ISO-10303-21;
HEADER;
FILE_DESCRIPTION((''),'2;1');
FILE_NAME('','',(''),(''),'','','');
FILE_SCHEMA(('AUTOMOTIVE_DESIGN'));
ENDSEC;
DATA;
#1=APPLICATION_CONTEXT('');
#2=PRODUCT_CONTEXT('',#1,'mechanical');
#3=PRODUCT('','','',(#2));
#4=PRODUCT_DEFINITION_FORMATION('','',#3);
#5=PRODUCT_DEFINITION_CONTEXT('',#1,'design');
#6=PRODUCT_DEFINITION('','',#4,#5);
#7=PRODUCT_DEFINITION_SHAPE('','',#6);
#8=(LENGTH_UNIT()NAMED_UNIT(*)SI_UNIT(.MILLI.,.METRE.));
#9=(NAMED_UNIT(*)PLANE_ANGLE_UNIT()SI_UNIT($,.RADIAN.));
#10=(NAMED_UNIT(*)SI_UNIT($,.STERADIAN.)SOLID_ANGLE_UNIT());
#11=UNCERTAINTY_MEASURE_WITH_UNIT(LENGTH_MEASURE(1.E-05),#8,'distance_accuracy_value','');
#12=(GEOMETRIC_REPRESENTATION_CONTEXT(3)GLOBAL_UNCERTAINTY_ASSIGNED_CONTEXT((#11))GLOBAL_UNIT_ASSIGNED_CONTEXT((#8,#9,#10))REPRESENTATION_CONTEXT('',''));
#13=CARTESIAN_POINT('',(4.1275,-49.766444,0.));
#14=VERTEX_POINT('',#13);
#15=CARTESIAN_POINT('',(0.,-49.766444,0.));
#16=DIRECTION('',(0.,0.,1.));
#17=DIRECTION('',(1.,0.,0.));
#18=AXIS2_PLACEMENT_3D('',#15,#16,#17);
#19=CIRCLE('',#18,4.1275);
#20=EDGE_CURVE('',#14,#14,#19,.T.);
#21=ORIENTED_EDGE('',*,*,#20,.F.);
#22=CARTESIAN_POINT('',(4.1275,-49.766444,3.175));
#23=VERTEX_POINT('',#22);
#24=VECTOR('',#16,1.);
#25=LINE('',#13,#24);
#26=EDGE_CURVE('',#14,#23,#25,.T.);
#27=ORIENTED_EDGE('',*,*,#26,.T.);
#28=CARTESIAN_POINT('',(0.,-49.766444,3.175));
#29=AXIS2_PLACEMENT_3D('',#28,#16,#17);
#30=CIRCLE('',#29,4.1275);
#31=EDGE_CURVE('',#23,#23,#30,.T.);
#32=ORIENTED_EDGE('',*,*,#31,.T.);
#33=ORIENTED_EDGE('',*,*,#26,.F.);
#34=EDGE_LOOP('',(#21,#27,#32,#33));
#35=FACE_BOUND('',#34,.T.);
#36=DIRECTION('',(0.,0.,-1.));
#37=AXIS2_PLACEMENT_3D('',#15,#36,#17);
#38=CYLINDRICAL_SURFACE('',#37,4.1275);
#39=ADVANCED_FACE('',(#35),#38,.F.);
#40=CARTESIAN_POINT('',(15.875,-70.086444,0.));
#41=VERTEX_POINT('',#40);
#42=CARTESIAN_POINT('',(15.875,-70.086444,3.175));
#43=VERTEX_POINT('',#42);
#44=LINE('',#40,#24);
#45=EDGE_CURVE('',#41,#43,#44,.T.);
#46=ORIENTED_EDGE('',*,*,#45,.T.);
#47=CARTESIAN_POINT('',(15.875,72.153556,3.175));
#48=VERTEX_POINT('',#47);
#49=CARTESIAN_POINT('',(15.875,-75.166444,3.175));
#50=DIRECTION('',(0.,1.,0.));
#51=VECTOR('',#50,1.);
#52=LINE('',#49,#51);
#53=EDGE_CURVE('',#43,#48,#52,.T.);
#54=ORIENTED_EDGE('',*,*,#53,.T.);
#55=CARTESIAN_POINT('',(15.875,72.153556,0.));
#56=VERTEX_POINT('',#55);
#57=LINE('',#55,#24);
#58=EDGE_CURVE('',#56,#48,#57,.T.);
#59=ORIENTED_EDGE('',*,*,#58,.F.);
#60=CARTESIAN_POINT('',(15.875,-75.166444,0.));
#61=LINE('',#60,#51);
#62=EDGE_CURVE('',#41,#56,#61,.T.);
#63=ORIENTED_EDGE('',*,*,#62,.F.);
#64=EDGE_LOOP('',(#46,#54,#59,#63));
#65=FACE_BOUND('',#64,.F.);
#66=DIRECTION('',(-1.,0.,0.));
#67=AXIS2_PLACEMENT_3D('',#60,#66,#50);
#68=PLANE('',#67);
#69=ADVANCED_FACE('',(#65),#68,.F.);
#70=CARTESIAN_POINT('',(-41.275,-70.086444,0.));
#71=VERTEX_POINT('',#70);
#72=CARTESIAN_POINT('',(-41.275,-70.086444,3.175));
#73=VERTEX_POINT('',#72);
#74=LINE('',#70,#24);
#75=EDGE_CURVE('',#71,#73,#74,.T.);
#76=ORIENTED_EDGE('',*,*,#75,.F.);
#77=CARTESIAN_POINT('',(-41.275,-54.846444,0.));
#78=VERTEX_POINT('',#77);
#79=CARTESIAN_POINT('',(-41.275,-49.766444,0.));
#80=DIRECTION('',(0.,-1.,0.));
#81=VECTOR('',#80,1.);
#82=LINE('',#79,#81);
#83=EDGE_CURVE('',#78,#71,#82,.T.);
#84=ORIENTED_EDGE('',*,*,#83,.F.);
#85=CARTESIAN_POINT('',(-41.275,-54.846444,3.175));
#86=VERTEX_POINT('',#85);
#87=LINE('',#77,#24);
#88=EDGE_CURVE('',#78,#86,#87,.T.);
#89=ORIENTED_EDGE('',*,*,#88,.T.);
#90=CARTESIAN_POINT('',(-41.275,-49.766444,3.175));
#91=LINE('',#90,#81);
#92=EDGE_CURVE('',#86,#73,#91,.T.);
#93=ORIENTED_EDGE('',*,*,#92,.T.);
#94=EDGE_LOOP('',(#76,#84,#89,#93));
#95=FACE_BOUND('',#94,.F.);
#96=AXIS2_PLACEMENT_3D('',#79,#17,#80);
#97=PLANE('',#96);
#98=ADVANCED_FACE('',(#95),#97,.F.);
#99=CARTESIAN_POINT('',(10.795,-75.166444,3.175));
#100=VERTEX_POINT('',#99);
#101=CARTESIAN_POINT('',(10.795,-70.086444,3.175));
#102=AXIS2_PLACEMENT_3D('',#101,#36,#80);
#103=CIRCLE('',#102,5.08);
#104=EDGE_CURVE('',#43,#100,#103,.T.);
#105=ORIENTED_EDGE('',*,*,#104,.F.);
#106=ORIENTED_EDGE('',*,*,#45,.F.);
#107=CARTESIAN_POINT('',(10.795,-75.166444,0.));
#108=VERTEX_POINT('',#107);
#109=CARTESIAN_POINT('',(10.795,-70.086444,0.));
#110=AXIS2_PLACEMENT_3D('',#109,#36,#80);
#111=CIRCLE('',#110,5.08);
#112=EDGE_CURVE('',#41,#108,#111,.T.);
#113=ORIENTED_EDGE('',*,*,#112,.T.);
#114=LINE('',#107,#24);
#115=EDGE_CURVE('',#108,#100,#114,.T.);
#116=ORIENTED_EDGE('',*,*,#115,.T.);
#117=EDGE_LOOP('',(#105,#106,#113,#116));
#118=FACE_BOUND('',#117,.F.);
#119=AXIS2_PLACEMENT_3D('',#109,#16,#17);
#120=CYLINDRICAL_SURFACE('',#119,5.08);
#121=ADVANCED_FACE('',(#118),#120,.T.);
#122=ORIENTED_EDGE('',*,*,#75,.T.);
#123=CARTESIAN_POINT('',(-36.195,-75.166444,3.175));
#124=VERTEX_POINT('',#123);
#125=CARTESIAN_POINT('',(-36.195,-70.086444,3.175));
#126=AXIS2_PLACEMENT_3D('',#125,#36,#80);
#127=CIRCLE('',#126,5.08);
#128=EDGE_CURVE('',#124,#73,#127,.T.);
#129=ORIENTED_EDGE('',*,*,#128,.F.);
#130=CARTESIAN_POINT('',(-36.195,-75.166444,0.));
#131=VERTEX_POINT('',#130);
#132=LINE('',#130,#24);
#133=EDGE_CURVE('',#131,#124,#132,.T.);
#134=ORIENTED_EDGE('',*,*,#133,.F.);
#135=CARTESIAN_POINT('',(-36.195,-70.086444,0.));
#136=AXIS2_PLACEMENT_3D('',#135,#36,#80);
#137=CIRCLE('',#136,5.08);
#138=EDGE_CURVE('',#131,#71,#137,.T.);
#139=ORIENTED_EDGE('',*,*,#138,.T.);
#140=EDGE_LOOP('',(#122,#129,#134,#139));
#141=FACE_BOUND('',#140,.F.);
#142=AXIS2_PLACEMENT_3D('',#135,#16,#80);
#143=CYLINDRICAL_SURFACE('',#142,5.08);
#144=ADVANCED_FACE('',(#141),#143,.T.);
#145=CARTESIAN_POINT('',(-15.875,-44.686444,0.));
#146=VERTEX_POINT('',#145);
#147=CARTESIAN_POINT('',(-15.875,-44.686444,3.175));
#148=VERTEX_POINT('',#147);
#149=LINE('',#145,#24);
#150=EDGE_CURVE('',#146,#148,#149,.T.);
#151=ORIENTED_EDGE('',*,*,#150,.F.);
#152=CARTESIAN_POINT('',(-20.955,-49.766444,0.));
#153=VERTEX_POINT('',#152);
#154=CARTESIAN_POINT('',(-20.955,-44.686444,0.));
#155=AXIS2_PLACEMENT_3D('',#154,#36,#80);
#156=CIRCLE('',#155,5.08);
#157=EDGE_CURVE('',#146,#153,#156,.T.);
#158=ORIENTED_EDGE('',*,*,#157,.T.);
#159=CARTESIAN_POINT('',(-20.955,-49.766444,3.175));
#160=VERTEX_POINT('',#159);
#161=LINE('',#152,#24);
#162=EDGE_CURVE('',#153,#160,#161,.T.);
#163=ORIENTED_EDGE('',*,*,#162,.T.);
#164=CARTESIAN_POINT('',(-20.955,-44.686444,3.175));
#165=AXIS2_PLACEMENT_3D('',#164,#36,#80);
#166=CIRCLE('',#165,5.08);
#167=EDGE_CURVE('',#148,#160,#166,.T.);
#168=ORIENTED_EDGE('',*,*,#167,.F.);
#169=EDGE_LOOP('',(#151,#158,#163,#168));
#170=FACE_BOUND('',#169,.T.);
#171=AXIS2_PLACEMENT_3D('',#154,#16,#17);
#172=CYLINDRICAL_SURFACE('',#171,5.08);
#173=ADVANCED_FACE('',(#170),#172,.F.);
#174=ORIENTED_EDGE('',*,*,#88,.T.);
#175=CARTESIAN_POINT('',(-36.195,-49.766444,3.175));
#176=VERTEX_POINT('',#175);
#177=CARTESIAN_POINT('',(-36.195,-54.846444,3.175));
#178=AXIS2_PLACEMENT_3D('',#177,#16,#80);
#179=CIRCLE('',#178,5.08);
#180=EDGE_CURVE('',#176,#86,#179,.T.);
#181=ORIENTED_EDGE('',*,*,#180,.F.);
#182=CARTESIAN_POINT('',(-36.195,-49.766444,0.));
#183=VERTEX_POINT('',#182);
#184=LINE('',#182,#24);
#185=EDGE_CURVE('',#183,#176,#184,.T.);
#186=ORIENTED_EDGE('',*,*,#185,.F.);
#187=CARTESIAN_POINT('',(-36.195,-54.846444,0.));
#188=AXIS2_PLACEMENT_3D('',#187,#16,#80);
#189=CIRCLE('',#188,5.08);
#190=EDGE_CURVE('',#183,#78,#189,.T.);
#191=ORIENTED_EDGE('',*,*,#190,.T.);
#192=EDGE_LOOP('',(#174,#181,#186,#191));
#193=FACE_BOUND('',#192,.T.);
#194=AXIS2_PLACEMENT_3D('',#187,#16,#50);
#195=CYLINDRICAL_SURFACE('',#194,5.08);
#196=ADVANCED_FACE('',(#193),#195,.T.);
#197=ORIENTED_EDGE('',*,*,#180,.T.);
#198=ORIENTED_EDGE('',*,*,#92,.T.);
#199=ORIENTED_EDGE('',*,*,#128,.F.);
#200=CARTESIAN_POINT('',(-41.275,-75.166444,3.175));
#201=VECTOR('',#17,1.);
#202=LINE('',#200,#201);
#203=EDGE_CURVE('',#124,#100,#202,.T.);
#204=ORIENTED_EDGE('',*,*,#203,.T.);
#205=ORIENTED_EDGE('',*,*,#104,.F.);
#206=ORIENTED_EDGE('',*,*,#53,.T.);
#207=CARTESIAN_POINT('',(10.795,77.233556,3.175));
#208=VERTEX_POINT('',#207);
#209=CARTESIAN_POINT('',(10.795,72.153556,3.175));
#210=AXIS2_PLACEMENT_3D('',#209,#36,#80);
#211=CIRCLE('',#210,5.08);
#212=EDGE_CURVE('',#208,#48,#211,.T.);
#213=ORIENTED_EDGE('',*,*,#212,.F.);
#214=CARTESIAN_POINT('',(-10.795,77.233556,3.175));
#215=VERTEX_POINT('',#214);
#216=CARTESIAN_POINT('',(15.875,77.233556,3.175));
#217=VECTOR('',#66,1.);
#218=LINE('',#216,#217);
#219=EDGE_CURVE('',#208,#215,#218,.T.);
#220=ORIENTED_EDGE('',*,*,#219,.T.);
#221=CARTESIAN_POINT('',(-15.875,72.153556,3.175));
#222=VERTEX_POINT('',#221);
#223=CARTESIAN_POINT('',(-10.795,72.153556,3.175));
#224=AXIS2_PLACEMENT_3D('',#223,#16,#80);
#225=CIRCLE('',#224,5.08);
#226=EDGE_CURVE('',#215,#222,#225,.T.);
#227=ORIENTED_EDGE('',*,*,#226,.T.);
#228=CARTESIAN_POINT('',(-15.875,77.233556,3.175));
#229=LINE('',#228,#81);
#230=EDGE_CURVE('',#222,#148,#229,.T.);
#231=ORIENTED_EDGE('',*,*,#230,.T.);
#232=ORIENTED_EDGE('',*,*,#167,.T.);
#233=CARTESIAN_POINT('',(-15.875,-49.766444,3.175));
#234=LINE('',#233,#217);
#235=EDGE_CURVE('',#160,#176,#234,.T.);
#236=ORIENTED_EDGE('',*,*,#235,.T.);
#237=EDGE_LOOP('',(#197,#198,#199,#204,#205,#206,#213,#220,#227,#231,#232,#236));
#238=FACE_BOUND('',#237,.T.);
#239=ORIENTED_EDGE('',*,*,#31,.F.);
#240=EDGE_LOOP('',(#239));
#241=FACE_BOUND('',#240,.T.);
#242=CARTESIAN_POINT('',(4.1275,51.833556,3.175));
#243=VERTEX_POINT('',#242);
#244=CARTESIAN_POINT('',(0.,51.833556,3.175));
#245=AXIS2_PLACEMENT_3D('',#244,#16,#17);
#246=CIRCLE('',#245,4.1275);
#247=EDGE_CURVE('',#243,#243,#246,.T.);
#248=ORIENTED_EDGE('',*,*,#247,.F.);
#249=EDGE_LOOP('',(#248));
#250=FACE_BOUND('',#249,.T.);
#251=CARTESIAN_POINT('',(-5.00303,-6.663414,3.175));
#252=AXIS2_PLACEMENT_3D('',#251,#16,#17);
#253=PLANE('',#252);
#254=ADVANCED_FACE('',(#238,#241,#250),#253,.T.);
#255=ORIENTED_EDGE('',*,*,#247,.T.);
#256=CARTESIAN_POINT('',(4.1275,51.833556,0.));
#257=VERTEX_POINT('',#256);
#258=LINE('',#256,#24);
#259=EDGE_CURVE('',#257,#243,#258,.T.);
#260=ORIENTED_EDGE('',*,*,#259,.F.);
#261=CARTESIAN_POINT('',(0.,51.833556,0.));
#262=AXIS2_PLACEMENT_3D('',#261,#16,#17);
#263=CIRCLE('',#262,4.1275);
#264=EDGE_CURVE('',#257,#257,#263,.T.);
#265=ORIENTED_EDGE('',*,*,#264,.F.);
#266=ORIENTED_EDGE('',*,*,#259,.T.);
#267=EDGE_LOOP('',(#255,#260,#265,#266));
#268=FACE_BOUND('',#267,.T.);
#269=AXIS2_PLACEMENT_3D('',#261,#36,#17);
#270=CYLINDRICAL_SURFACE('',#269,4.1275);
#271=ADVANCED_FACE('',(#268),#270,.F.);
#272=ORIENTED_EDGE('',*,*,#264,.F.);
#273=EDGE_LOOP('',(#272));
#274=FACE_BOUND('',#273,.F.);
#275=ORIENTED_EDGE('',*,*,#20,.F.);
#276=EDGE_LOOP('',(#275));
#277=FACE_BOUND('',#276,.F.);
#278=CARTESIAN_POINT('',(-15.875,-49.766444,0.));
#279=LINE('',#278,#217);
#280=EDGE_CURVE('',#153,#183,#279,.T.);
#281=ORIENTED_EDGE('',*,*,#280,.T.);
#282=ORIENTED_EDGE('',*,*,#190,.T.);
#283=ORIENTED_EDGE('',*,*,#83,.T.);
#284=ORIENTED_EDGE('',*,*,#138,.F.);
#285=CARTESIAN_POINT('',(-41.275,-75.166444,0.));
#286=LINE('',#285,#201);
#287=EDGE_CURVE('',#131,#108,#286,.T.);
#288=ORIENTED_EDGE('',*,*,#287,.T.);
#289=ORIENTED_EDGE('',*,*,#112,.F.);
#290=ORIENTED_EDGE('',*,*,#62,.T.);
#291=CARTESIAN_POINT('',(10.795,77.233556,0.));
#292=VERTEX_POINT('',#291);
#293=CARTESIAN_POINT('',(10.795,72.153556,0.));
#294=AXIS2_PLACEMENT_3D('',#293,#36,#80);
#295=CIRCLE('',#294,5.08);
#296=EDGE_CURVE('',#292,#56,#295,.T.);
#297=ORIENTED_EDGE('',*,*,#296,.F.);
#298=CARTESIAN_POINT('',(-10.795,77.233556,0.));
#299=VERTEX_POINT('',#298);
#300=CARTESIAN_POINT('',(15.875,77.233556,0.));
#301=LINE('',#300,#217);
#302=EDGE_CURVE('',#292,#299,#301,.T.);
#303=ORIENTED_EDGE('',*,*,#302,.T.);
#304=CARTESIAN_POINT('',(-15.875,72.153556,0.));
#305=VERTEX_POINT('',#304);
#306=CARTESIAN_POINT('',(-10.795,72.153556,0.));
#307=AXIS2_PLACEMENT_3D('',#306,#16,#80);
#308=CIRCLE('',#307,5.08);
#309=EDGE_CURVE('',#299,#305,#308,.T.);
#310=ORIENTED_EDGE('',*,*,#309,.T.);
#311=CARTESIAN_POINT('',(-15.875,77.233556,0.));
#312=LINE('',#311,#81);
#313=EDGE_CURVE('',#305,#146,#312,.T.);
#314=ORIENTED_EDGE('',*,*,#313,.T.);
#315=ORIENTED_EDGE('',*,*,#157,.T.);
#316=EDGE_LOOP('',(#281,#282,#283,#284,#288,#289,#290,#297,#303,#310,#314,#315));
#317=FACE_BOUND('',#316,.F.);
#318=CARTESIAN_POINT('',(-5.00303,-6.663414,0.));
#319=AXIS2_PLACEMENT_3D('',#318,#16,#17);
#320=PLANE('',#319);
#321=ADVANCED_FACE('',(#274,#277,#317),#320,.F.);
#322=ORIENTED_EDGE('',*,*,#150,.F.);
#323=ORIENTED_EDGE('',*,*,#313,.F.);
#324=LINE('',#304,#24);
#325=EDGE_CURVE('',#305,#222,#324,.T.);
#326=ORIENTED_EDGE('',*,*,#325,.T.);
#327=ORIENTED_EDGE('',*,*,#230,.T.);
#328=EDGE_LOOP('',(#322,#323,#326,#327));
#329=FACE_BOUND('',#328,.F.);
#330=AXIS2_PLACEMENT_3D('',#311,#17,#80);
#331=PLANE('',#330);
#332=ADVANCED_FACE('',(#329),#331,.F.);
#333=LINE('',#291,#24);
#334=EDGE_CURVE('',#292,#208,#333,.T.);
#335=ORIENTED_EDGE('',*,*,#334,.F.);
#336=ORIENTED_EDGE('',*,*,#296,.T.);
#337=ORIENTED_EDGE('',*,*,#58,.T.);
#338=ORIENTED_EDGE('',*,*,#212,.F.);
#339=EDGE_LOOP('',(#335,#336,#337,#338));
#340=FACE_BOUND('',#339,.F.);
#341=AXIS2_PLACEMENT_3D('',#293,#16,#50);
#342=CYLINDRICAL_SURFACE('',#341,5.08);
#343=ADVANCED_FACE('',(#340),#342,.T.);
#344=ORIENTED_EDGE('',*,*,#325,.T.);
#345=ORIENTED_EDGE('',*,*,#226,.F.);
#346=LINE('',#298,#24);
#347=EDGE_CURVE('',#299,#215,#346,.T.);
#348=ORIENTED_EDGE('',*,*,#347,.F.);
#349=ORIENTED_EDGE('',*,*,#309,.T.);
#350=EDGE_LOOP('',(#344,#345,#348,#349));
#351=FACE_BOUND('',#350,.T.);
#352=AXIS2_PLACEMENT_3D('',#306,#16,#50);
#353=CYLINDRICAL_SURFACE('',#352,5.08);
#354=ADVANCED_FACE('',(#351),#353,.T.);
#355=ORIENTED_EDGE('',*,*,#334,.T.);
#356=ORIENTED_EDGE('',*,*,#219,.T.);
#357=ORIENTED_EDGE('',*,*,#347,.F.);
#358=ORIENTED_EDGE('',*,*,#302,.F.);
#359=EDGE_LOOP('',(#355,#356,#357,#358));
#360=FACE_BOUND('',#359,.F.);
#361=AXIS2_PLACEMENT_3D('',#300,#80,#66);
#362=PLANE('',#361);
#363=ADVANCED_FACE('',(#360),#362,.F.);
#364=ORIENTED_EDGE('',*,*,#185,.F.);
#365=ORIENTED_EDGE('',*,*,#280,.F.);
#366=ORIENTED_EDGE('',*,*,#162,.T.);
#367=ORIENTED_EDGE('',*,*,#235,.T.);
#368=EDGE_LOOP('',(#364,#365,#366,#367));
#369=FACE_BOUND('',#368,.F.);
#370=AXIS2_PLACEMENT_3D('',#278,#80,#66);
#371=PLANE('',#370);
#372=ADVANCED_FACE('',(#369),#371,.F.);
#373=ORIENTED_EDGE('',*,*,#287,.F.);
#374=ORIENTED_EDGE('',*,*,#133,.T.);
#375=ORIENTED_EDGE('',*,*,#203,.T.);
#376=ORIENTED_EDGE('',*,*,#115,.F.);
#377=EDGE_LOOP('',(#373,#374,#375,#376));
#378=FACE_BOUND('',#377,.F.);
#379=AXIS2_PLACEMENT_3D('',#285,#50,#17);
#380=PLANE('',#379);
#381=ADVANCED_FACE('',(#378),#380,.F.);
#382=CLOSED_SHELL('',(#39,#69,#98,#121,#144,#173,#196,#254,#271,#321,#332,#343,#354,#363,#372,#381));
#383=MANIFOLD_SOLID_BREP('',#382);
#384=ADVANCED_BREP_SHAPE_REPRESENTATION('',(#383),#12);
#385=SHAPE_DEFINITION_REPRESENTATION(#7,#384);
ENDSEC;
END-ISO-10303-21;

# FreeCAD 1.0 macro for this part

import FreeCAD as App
import Part
import Sketcher
Q = App.Units.Quantity


def edges_at(feature, points):
    """Names of the edges that pass closest to the given points."""
    edges = feature.Shape.Edges
    near = lambda p: min(range(len(edges)), key=lambda i: edges[i].distToShape(Part.Vertex(*p))[0])
    return sorted({f"Edge{near(p) + 1}" for p in points})


def add_polygon(sketch, points):
    """Adds a closed chain of lines whose ends are joined by coincident constraints."""
    first, n = sketch.GeometryCount, len(points)
    for a, b in zip(points, points[1:] + points[:1]):
        sketch.addGeometry(Part.LineSegment(App.Vector(*a, 0), App.Vector(*b, 0)), False)
    for i in range(n):
        sketch.addConstraint(Sketcher.Constraint("Coincident", first + i, 2, first + (i + 1) % n, 1))

doc = App.newDocument("Part")
body = doc.addObject("PartDesign::Body", "Body")

sketch1 = body.newObject("Sketcher::SketchObject", "Sketch")
sketch1.AttachmentSupport = (doc.getObject("XY_Plane"), [""])
sketch1.MapMode = "FlatFace"
add_polygon(sketch1, [(15.875, 77.233556), (-15.875, 77.233556), (-15.875, -49.766444), (-41.275, -49.766444), (-41.275, -75.166444), (15.875, -75.166444)])
sketch1.addGeometry(Part.Circle(App.Vector(0, -49.766444, 0), App.Vector(0, 0, 1), 4.1275), False)
sketch1.addGeometry(Part.Circle(App.Vector(0, 51.833556, 0), App.Vector(0, 0, 1), 4.1275), False)
sketch1.addConstraint([
    Sketcher.Constraint("Horizontal", 0),
    Sketcher.Constraint("Vertical", 1),
    Sketcher.Constraint("Horizontal", 2),
    Sketcher.Constraint("Vertical", 3),
    Sketcher.Constraint("Horizontal", 4),
    Sketcher.Constraint("Vertical", 5),
    Sketcher.Constraint("Equal", 6, 7),
    Sketcher.Constraint("PointOnObject", 6, 3, -2),
    Sketcher.Constraint("PointOnObject", 7, 3, -2),
    Sketcher.Constraint("Horizontal", 6, 3, 1, 2),
    Sketcher.Constraint("Equal", 2, 3),
    Sketcher.Constraint("DistanceX", 2, 2, 2, 1, Q("1 in")),
    Sketcher.Constraint("DistanceY", 1, 2, 1, 1, Q("5 in")),
    Sketcher.Constraint("Diameter", 6, Q("0.325 in")),
    Sketcher.Constraint("DistanceY", 6, 3, 7, 3, Q("4 in")),
    Sketcher.Constraint("DistanceX", 0, 2, 0, 1, Q("1.25 in")),
    Sketcher.Constraint("DistanceX", 0, 2, -1, 1, Q("0.625 in")),
    Sketcher.Constraint("DistanceY", 6, 3, -1, 1, 49.766444),
])
pad1 = body.newObject("PartDesign::Pad", "Pad")
pad1.Profile = sketch1
pad1.Length = Q("0.125 in")
doc.recompute()

fillet = body.newObject("PartDesign::Fillet", "Fillet")
fillet.Base = (pad1, edges_at(pad1, [
    (-15.875, 77.234, 1.587),
    (15.875, 77.234, 1.587),
    (-15.875, -49.766, 1.587),
    (-41.275, -49.766, 1.587),
    (-41.275, -75.166, 1.587),
    (15.875, -75.166, 1.587),
]))
fillet.Radius = Q("0.2 in")

doc.recompute()
